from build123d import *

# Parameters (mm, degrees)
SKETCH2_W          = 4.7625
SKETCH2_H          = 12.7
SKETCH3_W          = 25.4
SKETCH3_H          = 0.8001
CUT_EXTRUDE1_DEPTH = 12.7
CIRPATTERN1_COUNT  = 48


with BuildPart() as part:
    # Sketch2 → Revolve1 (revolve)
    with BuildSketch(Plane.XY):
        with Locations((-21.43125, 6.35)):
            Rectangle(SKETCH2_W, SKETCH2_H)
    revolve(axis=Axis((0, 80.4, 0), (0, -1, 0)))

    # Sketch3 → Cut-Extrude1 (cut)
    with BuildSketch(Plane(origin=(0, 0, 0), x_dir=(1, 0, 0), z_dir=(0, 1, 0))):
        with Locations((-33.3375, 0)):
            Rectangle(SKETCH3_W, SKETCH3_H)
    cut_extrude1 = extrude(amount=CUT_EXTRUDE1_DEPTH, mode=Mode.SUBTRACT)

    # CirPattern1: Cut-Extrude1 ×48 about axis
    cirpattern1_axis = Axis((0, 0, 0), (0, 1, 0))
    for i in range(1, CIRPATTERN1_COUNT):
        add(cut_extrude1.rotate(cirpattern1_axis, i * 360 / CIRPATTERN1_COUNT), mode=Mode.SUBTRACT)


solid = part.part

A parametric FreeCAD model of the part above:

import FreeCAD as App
import Part
import Sketcher
Q = App.Units.Quantity

doc = App.newDocument("Part")
params = doc.addObject("Spreadsheet::Sheet", "Params")
for row, (alias, value) in enumerate([
    ("sketch1_height", "0.5 in"),
    ("sketch1_width", "0.1875 in"),
    ("revolution_angle", "360 deg"),
    ("sketch2_width", "1 in"),
    ("pocket1_length", "0.5 in"),
], start=1):
    params.set(f"A{row}", alias)
    params.set(f"B{row}", "=" + value)
    params.setAlias(f"B{row}", alias)

body = doc.addObject("PartDesign::Body", "Body")

sketch1 = body.newObject("Sketcher::SketchObject", "Sketch")
sketch1.AttachmentSupport = (doc.getObject("XY_Plane"), [""])
sketch1.MapMode = "FlatFace"
sketch1.addGeometry([
    Part.LineSegment(App.Vector(-23.8, 12.7, 0), App.Vector(-23.8, 0, 0)),
    Part.LineSegment(App.Vector(-23.8, 0, 0), App.Vector(-19.1, 0, 0)),
    Part.LineSegment(App.Vector(-19.1, 0, 0), App.Vector(-19.1, 12.7, 0)),
    Part.LineSegment(App.Vector(-19.1, 12.7, 0), App.Vector(-23.8, 12.7, 0)),
], False)
sketch1.addConstraint([
    Sketcher.Constraint("Coincident", 0, 2, 1, 1),
    Sketcher.Constraint("Coincident", 1, 2, 2, 1),
    Sketcher.Constraint("Coincident", 2, 2, 3, 1),
    Sketcher.Constraint("Coincident", 3, 2, 0, 1),
    Sketcher.Constraint("Vertical", 0),
    Sketcher.Constraint("Horizontal", 1),
    Sketcher.Constraint("Vertical", 2),
    Sketcher.Constraint("Horizontal", 3),
    Sketcher.Constraint("PointOnObject", 0, 2, -1),
    Sketcher.Constraint("DistanceY", 0, 2, 0, 1, Q("0.5 in")),
    Sketcher.Constraint("DistanceX", 1, 1, 1, 2, Q("0.1875 in")),
    Sketcher.Constraint("DistanceX", 1, 2, -1, 1, Q("0.75 in")),
])
sketch1.setExpression("Constraints[9]", "Params.sketch1_height")
sketch1.setExpression("Constraints[10]", "Params.sketch1_width")
revolution = body.newObject("PartDesign::Revolution", "Revolution")
revolution.Profile = sketch1
revolution.ReferenceAxis = (sketch1, ["V_Axis"])
revolution.setExpression("Angle", "Params.revolution_angle")

sketch2 = body.newObject("Sketcher::SketchObject", "Sketch001")
sketch2.AttachmentSupport = (doc.getObject("XZ_Plane"), [""])
sketch2.MapMode = "FlatFace"
sketch2.addGeometry([
    Part.LineSegment(App.Vector(-46, -0.4, 0), App.Vector(-46, 0.4, 0)),
    Part.LineSegment(App.Vector(-46, 0.4, 0), App.Vector(-20.6, 0.4, 0)),
    Part.LineSegment(App.Vector(-20.6, 0.4, 0), App.Vector(-20.6, -0.4, 0)),
    Part.LineSegment(App.Vector(-20.6, -0.4, 0), App.Vector(-46, -0.4, 0)),
], False)
sketch2.addConstraint([
    Sketcher.Constraint("Coincident", 0, 2, 1, 1),
    Sketcher.Constraint("Coincident", 1, 2, 2, 1),
    Sketcher.Constraint("Coincident", 2, 2, 3, 1),
    Sketcher.Constraint("Coincident", 3, 2, 0, 1),
    Sketcher.Constraint("Vertical", 0),
    Sketcher.Constraint("Horizontal", 1),
    Sketcher.Constraint("Vertical", 2),
    Sketcher.Constraint("Horizontal", 3),
    Sketcher.Constraint("DistanceX", 1, 1, 1, 2, Q("1 in")),
    Sketcher.Constraint("DistanceY", 0, 1, 0, 2, Q("0.0315 in")),
    Sketcher.Constraint("DistanceX", 0, 2, -1, 1, Q("1.8125 in")),
    Sketcher.Constraint("DistanceY", -1, 1, 0, 2, 0.40005),
])
sketch2.setExpression("Constraints[8]", "Params.sketch2_width")
pocket1 = body.newObject("PartDesign::Pocket", "Pocket")
pocket1.Profile = sketch2
pocket1.setExpression("Length", "Params.pocket1_length")
doc.recompute()

polarpattern = body.newObject("PartDesign::PolarPattern", "PolarPattern")
polarpattern.Originals = [pocket1]
polarpattern.Axis = (doc.getObject("Y_Axis"), [""])
polarpattern.Angle = 360
polarpattern.Occurrences = 48
body.Tip = polarpattern

doc.recompute()
